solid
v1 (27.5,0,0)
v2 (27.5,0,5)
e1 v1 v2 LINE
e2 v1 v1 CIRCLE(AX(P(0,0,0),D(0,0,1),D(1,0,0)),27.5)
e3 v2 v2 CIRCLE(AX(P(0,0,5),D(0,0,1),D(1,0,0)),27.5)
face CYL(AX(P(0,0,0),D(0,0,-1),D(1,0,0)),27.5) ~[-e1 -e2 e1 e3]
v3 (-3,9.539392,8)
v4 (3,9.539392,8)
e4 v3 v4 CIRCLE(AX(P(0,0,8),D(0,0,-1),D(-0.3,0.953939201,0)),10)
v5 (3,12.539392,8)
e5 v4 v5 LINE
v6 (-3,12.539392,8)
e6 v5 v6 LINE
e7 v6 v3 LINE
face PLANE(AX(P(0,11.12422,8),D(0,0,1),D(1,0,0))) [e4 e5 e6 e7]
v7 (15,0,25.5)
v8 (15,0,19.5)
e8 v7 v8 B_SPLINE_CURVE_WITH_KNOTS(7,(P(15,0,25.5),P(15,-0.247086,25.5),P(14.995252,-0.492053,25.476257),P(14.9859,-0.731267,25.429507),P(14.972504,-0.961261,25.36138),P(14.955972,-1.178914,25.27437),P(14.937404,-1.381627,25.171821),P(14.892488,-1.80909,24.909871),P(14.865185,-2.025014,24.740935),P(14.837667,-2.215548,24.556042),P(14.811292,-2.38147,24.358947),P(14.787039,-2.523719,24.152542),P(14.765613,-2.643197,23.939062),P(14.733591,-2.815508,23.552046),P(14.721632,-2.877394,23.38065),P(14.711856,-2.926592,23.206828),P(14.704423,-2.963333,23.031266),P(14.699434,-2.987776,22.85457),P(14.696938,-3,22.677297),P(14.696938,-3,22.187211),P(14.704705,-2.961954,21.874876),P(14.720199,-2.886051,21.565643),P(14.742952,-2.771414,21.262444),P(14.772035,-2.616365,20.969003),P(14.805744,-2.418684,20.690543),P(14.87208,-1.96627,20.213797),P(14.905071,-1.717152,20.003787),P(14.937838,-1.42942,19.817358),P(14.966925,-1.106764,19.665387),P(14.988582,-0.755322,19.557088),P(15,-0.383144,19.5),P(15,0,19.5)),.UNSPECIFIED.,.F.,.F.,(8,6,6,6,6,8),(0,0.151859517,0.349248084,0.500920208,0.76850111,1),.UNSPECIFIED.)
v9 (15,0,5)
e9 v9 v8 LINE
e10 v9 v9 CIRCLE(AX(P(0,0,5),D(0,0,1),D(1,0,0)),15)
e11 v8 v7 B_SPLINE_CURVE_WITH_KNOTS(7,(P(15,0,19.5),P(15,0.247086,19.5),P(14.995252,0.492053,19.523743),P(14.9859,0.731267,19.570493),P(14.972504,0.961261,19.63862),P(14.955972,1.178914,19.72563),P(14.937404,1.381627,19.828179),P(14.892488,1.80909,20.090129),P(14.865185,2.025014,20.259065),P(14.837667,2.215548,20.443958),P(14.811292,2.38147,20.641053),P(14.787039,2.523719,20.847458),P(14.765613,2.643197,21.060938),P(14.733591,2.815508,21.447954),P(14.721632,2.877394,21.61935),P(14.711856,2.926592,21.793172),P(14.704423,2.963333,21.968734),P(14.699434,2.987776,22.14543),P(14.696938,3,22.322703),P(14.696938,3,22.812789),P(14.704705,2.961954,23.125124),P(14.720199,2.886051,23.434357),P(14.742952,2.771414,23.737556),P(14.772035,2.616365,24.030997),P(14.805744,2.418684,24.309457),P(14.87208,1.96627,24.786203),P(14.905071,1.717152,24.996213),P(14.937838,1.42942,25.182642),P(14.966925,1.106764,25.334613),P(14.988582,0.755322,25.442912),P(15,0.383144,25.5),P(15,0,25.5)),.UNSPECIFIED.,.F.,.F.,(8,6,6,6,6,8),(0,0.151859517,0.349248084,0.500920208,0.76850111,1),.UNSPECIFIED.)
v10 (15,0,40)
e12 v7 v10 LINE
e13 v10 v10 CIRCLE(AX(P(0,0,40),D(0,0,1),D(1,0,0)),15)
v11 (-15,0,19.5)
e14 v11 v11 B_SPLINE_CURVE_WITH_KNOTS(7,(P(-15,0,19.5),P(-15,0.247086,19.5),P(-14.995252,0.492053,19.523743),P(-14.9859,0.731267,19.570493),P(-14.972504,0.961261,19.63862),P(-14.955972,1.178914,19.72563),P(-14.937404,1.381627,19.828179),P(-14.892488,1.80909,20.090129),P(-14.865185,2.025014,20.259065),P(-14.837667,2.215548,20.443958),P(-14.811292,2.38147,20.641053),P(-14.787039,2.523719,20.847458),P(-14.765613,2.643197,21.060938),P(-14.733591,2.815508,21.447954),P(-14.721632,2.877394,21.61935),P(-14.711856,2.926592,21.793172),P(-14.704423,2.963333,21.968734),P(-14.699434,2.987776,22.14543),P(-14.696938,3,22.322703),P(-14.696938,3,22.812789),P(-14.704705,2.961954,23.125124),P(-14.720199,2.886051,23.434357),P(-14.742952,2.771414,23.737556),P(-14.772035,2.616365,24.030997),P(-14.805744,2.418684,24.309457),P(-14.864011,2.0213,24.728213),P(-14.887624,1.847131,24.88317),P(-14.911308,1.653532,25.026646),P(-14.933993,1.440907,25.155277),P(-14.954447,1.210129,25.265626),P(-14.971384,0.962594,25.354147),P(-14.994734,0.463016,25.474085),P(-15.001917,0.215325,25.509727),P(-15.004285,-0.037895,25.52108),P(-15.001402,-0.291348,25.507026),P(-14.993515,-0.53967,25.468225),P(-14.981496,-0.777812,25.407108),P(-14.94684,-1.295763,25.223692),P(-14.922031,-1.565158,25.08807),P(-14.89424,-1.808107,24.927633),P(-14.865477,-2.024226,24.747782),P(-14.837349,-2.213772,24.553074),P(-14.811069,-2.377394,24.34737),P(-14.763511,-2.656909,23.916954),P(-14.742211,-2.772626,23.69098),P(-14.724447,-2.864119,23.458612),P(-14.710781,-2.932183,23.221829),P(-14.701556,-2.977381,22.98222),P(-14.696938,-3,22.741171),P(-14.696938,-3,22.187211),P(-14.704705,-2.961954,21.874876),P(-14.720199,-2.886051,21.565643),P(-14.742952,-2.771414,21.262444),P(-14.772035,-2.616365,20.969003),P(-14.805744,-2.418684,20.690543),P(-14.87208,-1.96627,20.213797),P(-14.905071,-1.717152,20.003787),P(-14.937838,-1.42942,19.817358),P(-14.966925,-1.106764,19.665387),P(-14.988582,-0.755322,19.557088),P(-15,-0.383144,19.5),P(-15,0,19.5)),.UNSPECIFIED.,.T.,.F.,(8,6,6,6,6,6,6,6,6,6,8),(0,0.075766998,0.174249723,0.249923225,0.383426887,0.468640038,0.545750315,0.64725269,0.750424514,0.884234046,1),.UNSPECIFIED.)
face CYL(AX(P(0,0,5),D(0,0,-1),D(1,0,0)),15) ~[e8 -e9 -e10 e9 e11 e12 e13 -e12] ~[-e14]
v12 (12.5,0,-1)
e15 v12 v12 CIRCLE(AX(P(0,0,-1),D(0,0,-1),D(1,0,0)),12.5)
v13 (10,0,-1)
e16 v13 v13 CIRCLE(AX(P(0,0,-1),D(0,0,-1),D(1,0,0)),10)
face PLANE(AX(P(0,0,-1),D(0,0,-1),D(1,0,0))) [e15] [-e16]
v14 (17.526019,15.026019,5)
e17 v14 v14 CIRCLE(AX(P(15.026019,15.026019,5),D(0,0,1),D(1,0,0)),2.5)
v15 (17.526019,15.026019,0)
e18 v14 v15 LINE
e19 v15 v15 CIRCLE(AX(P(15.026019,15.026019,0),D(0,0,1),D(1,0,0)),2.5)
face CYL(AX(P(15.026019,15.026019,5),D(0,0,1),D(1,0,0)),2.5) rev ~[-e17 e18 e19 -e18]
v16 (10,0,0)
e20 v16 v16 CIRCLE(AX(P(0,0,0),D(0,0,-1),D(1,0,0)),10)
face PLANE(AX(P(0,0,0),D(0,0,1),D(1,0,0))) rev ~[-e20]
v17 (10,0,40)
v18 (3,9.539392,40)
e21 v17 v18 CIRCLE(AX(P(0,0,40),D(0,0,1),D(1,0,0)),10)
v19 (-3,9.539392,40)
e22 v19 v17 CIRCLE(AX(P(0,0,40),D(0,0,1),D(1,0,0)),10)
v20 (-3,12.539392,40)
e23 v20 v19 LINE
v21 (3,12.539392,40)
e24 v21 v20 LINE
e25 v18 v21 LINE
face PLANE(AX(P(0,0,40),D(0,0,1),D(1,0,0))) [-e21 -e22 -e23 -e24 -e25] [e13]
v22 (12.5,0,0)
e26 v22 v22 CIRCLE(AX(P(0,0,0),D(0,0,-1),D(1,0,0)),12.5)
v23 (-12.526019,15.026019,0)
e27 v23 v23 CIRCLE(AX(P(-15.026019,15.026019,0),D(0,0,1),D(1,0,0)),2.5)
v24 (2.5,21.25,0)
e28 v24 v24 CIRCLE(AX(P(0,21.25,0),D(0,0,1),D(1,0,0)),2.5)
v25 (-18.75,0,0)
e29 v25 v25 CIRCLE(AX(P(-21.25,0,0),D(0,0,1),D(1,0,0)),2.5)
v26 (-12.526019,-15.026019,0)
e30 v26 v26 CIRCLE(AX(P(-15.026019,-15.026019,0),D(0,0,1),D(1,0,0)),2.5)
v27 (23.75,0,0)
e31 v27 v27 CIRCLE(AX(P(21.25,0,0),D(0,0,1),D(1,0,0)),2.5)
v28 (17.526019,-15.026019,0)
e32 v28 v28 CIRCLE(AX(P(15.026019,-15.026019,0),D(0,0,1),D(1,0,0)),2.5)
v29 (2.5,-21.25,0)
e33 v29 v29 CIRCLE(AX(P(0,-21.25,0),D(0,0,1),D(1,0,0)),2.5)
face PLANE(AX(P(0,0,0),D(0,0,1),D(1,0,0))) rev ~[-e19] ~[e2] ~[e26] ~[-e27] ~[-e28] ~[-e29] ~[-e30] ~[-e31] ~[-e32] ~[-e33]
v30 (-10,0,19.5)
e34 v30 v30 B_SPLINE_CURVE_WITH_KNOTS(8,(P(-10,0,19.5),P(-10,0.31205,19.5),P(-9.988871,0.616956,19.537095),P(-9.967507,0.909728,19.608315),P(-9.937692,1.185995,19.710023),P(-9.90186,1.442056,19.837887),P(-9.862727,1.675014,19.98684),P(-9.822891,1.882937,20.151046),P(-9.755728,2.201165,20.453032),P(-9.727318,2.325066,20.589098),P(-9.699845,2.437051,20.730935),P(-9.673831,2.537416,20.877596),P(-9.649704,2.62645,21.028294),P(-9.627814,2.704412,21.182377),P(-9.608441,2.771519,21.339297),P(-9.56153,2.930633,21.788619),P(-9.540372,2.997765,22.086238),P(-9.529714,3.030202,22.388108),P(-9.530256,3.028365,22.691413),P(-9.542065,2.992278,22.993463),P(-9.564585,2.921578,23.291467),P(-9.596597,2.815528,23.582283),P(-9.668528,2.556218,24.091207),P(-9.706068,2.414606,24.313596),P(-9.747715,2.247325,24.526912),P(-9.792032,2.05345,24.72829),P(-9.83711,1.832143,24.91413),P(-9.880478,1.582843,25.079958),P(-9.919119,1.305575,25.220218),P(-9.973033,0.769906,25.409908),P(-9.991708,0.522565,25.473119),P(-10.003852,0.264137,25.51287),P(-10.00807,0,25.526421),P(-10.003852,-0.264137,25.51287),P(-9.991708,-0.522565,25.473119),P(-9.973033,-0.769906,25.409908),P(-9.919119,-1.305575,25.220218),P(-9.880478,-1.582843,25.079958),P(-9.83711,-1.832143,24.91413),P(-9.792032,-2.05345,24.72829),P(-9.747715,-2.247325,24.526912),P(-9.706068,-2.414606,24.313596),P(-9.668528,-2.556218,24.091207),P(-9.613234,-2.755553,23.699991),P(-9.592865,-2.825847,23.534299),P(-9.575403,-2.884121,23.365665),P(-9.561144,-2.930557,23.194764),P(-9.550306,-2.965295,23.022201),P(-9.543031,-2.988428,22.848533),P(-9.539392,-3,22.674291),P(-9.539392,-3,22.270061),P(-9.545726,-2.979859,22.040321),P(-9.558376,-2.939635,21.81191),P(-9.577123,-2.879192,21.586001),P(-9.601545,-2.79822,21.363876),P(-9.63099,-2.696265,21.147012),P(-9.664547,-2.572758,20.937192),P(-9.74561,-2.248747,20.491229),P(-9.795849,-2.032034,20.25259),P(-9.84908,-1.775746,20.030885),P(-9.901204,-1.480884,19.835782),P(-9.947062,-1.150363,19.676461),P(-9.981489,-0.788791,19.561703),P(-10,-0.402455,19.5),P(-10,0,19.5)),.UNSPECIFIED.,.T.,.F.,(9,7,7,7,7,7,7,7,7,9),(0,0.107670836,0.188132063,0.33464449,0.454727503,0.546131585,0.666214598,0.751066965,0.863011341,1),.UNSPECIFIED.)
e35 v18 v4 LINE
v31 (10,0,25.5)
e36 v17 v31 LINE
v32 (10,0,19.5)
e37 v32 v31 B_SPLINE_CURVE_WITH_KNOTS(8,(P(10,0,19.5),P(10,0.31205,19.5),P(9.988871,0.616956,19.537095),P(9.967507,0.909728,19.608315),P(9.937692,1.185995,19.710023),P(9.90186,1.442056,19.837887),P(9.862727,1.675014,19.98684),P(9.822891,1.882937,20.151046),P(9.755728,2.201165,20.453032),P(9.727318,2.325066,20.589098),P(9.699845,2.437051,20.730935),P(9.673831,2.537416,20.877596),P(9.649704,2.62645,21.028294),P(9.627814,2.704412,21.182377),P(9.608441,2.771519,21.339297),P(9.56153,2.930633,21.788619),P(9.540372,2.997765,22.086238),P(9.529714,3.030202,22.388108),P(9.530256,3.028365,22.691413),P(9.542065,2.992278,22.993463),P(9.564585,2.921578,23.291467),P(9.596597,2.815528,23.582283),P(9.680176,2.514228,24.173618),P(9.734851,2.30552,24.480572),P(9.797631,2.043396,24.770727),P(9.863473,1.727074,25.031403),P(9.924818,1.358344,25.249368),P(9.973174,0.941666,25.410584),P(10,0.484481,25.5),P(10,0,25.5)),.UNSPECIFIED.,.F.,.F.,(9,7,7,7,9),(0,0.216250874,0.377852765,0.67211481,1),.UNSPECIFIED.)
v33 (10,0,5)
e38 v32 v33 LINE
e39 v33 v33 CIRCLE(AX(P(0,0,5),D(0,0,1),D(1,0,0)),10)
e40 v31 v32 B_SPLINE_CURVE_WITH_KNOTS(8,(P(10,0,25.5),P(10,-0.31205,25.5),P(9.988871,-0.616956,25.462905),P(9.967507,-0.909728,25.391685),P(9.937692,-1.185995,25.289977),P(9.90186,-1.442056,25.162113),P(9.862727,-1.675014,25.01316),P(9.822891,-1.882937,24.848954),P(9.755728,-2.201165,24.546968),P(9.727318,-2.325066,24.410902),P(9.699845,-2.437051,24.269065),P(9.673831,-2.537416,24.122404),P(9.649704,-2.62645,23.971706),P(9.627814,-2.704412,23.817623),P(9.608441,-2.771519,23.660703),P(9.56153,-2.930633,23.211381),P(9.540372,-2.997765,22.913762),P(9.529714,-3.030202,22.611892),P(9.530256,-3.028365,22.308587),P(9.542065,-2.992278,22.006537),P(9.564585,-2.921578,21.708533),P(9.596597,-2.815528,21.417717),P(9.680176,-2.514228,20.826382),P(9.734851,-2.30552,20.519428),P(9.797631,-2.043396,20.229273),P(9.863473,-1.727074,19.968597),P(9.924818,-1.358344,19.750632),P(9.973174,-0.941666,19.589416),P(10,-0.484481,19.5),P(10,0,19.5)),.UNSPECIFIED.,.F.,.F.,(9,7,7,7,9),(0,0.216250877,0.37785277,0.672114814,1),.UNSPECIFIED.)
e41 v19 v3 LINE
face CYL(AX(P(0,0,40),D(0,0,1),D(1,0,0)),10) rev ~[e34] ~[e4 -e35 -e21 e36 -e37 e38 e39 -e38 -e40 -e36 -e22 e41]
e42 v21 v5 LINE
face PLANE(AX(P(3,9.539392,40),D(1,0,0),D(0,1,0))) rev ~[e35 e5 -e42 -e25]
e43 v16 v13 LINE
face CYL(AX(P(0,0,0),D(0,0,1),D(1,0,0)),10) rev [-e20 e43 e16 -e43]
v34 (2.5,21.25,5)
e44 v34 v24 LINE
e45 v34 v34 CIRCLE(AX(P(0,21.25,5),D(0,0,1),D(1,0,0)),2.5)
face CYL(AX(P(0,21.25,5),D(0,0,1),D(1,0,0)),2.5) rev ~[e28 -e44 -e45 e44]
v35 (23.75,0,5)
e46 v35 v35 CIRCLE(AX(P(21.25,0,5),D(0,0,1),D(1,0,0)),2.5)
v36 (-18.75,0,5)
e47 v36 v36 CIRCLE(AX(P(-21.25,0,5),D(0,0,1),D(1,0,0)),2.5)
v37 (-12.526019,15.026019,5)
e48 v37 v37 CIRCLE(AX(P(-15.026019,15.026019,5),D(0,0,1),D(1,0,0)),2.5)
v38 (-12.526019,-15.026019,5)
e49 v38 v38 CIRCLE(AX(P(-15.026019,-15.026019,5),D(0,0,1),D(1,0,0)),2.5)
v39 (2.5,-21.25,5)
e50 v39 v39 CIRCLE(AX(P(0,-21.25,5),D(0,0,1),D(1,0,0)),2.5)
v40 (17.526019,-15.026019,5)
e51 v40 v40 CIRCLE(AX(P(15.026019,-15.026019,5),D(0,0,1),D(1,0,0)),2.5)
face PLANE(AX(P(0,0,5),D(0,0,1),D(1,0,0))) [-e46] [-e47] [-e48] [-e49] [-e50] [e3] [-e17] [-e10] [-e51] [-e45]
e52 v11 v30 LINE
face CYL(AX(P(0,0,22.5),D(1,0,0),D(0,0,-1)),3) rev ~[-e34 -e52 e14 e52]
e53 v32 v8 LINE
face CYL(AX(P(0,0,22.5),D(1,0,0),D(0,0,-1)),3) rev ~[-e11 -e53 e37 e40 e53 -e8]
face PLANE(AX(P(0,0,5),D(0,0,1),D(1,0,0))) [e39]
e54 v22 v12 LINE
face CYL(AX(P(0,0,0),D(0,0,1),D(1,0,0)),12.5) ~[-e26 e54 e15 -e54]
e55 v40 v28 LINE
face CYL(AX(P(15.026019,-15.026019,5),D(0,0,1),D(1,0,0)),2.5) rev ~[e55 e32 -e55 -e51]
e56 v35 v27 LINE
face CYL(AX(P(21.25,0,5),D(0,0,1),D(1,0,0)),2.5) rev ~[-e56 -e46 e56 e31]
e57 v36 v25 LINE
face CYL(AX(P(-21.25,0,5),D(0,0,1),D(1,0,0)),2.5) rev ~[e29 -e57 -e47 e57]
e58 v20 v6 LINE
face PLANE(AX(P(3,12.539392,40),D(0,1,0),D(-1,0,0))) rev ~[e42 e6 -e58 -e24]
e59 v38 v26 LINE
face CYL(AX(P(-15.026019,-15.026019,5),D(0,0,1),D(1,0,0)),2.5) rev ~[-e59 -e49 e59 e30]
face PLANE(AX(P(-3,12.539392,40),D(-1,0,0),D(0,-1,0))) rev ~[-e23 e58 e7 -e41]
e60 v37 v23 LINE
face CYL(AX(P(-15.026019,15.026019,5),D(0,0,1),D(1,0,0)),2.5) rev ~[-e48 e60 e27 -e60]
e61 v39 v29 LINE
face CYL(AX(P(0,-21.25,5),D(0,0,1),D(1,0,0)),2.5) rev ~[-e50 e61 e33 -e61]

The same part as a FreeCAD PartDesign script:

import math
import FreeCAD as App
import Part
import Sketcher

doc = App.newDocument("Part")
body = doc.addObject("PartDesign::Body", "Body")

# Sketch on XY plane
sketch1 = doc.addObject("Sketcher::SketchObject", "Sketch")
body.addObject(sketch1)
sketch1.AttachmentSupport = (doc.XY_Plane, [""])
sketch1.MapMode = "FlatFace"
sketch1.addGeometry(Part.Circle(App.Vector(0, 0, 0), App.Vector(0, 0, 1), 28), False)
sketch1.addConstraint(Sketcher.Constraint("Coincident", 0, 3, -1, 1))
sketch1.addConstraint(Sketcher.Constraint("Diameter", 0, 55.0))
pad1 = doc.addObject("PartDesign::Pad", "Pad")
body.addObject(pad1)
pad1.Profile = sketch1
pad1.Length = 5

# Sketch on XY plane
sketch2 = doc.addObject("Sketcher::SketchObject", "Sketch001")
body.addObject(sketch2)
sketch2.AttachmentSupport = (doc.XY_Plane, [""])
sketch2.MapMode = "FlatFace"
sketch2.AttachmentOffset = App.Placement(App.Vector(0, 0, 5), App.Rotation())
sketch2.addGeometry(Part.Circle(App.Vector(0, 0, 0), App.Vector(0, 0, 1), 15), False)
sketch2.addConstraint(Sketcher.Constraint("Coincident", 0, 3, -1, 1))
sketch2.addConstraint(Sketcher.Constraint("Diameter", 0, 30.0))
pad2 = doc.addObject("PartDesign::Pad", "Pad001")
body.addObject(pad2)
pad2.Profile = sketch2
pad2.Length = 35

# Sketch on XY plane
sketch3 = doc.addObject("Sketcher::SketchObject", "Sketch002")
body.addObject(sketch3)
sketch3.AttachmentSupport = (doc.XY_Plane, [""])
sketch3.MapMode = "FlatFace"
sketch3.AttachmentOffset = App.Placement(App.Vector(0, 0, 5), App.Rotation())
sketch3.addGeometry(Part.Circle(App.Vector(0, 21.2, 0), App.Vector(0, 0, 1), 2.5), False)
sketch3.addGeometry(Part.Circle(App.Vector(0, -21.2, 0), App.Vector(0, 0, 1), 2.5), False)
sketch3.addGeometry(Part.Circle(App.Vector(21.2, 0, 0), App.Vector(0, 0, 1), 2.5), False)
sketch3.addGeometry(Part.Circle(App.Vector(-21.2, 0, 0), App.Vector(0, 0, 1), 2.5), False)
sketch3.addGeometry(Part.Circle(App.Vector(15, 15, 0), App.Vector(0, 0, 1), 2.5), False)
sketch3.addGeometry(Part.Circle(App.Vector(-15, 15, 0), App.Vector(0, 0, 1), 2.5), False)
sketch3.addGeometry(Part.Circle(App.Vector(-15, -15, 0), App.Vector(0, 0, 1), 2.5), False)
sketch3.addGeometry(Part.Circle(App.Vector(15, -15, 0), App.Vector(0, 0, 1), 2.5), False)
sketch3.addConstraint(Sketcher.Constraint("Equal", 0, 1))
sketch3.addConstraint(Sketcher.Constraint("Equal", 1, 2))
sketch3.addConstraint(Sketcher.Constraint("Equal", 2, 3))
sketch3.addConstraint(Sketcher.Constraint("Equal", 3, 4))
sketch3.addConstraint(Sketcher.Constraint("Equal", 4, 5))
sketch3.addConstraint(Sketcher.Constraint("Equal", 5, 6))
sketch3.addConstraint(Sketcher.Constraint("Equal", 6, 7))
sketch3.addConstraint(Sketcher.Constraint("Symmetric", 0, 3, 1, 3, -1, 1))
sketch3.addConstraint(Sketcher.Constraint("Symmetric", 2, 3, 3, 3, -1, 1))
sketch3.addConstraint(Sketcher.Constraint("Symmetric", 4, 3, 6, 3, -1, 1))
sketch3.addConstraint(Sketcher.Constraint("Symmetric", 5, 3, 7, 3, -1, 1))
sketch3.addConstraint(Sketcher.Constraint("Symmetric", 4, 3, 5, 3, -2))
sketch3.addConstraint(Sketcher.Constraint("PointOnObject", 0, 3, -2))
sketch3.addConstraint(Sketcher.Constraint("PointOnObject", 2, 3, -1))
sketch3.addConstraint(Sketcher.Constraint("Diameter", 0, 5.0))
sketch3.addConstraint(Sketcher.Constraint("DistanceY", 1, 3, 0, 3, 42.5))
sketch3.addConstraint(Sketcher.Constraint("DistanceX", 3, 3, 2, 3, 42.5))
sketch3.addConstraint(Sketcher.Constraint("DistanceX", -1, 1, 4, 3, 15.026019))
sketch3.addConstraint(Sketcher.Constraint("DistanceY", -1, 1, 4, 3, 15.026019))
pocket1 = doc.addObject("PartDesign::Pocket", "Pocket")
body.addObject(pocket1)
pocket1.Profile = sketch3
pocket1.Length = 5

# Sketch on XY plane
sketch4 = doc.addObject("Sketcher::SketchObject", "Sketch003")
body.addObject(sketch4)
sketch4.AttachmentSupport = (doc.XY_Plane, [""])
sketch4.MapMode = "FlatFace"
sketch4.AttachmentOffset = App.Placement(App.Vector(0, 0, 40), App.Rotation())
sketch4.addGeometry(Part.Circle(App.Vector(0, 0, 0), App.Vector(0, 0, 1), 10), False)
sketch4.addConstraint(Sketcher.Constraint("Coincident", 0, 3, -1, 1))
sketch4.addConstraint(Sketcher.Constraint("Diameter", 0, 20.0))
pocket2 = doc.addObject("PartDesign::Pocket", "Pocket001")
body.addObject(pocket2)
pocket2.Profile = sketch4
pocket2.Length = 35

# Sketch on XY plane
sketch5 = doc.addObject("Sketcher::SketchObject", "Sketch004")
body.addObject(sketch5)
sketch5.AttachmentSupport = (doc.XY_Plane, [""])
sketch5.MapMode = "FlatFace"
sketch5.AttachmentOffset = App.Placement(App.Vector(0, 0, 40), App.Rotation())
sketch5.addGeometry(Part.LineSegment(App.Vector(-3, 12.5, 0), App.Vector(-3, 9.5, 0)), False)
sketch5.addGeometry(Part.ArcOfCircle(Part.Circle(App.Vector(0, 0, 0), App.Vector(0, 0, 1), 10), math.radians(73), math.radians(107)), False)
sketch5.addGeometry(Part.LineSegment(App.Vector(3, 9.5, 0), App.Vector(3, 12.5, 0)), False)
sketch5.addGeometry(Part.LineSegment(App.Vector(3, 12.5, 0), App.Vector(-3, 12.5, 0)), False)
sketch5.addConstraint(Sketcher.Constraint("Coincident", 0, 2, 1, 2))
sketch5.addConstraint(Sketcher.Constraint("Coincident", 1, 1, 2, 1))
sketch5.addConstraint(Sketcher.Constraint("Coincident", 2, 2, 3, 1))
sketch5.addConstraint(Sketcher.Constraint("Coincident", 3, 2, 0, 1))
sketch5.addConstraint(Sketcher.Constraint("Vertical", 0))
sketch5.addConstraint(Sketcher.Constraint("Vertical", 2))
sketch5.addConstraint(Sketcher.Constraint("Horizontal", 3))
sketch5.addConstraint(Sketcher.Constraint("Coincident", 1, 3, -1, 1))
sketch5.addConstraint(Sketcher.Constraint("Horizontal", 0, 2, 1, 1))
sketch5.addConstraint(Sketcher.Constraint("Radius", 1, 10.0))
sketch5.addConstraint(Sketcher.Constraint("DistanceX", 3, 2, 3, 1, 6.0))
sketch5.addConstraint(Sketcher.Constraint("DistanceY", 0, 2, 0, 1, 3.0))
pocket3 = doc.addObject("PartDesign::Pocket", "Pocket002")
body.addObject(pocket3)
pocket3.Profile = sketch5
pocket3.Length = 32

# Sketch on XY plane
sketch6 = doc.addObject("Sketcher::SketchObject", "Sketch005")
body.addObject(sketch6)
sketch6.AttachmentSupport = (doc.XY_Plane, [""])
sketch6.MapMode = "FlatFace"
sketch6.addGeometry(Part.Circle(App.Vector(0, 0, 0), App.Vector(0, 0, 1), 12), False)
sketch6.addGeometry(Part.Circle(App.Vector(0, 0, 0), App.Vector(0, 0, 1), 10), False)
sketch6.addConstraint(Sketcher.Constraint("Coincident", 0, 3, -1, 1))
sketch6.addConstraint(Sketcher.Constraint("Coincident", 1, 3, -1, 1))
sketch6.addConstraint(Sketcher.Constraint("Diameter", 0, 25.0))
sketch6.addConstraint(Sketcher.Constraint("Diameter", 1, 20.0))
pad3 = doc.addObject("PartDesign::Pad", "Pad002")
body.addObject(pad3)
pad3.Profile = sketch6
pad3.Length = 1
pad3.Reversed = True

# Sketch on YZ plane
sketch7 = doc.addObject("Sketcher::SketchObject", "Sketch006")
body.addObject(sketch7)
sketch7.AttachmentSupport = (doc.YZ_Plane, [""])
sketch7.MapMode = "FlatFace"
sketch7.addGeometry(Part.Circle(App.Vector(0, 22.5, 0), App.Vector(0, 0, 1), 3), False)
sketch7.addConstraint(Sketcher.Constraint("PointOnObject", 0, 3, -2))
sketch7.addConstraint(Sketcher.Constraint("Diameter", 0, 6.0))
sketch7.addConstraint(Sketcher.Constraint("DistanceY", -1, 1, 0, 3, 22.5))
pocket4 = doc.addObject("PartDesign::Pocket", "Pocket003")
body.addObject(pocket4)
pocket4.Profile = sketch7
pocket4.Length = 50
pocket4.Midplane = True

doc.recompute()
